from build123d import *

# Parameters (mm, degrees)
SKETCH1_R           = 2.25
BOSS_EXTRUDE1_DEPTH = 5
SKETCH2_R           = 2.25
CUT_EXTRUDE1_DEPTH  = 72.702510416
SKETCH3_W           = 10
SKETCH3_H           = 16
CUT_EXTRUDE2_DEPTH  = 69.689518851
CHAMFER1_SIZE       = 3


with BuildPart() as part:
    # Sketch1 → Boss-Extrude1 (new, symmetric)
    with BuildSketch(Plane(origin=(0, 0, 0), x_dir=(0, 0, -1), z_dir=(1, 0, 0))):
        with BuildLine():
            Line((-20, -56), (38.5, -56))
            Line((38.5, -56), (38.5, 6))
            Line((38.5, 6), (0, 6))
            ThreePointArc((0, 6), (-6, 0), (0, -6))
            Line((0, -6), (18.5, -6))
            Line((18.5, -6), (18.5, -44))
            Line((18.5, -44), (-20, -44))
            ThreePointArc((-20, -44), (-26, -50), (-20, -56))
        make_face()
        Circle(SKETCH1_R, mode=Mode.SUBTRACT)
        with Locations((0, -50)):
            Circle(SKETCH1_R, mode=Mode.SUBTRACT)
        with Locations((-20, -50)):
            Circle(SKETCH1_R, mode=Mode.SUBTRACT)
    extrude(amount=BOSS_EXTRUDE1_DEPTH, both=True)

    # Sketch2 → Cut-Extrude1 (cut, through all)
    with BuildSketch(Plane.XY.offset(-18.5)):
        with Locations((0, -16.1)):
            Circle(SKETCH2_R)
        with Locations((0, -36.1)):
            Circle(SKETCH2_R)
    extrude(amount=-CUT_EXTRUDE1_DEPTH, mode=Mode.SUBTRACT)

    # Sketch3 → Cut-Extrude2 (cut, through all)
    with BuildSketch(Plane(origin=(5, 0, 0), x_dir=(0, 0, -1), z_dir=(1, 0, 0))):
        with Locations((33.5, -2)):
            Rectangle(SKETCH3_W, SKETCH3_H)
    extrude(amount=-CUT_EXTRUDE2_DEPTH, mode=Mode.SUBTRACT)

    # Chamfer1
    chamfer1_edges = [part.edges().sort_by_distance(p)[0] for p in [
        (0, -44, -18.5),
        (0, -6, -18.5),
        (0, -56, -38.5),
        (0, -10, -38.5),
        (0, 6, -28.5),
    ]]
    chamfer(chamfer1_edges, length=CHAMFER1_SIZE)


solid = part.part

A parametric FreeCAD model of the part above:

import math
import FreeCAD as App
import Part
import Sketcher
from FreeCAD import Vector
Q = App.Units.Quantity


def edges_at(feature, points):
    """Names of the edges that pass closest to the given points."""
    edges = feature.Shape.Edges
    near = lambda p: min(range(len(edges)), key=lambda i: edges[i].distToShape(Part.Vertex(*p))[0])
    return sorted({f"Edge{near(p) + 1}" for p in points})


def add_polygon(sketch, points):
    """Adds a closed chain of lines whose ends are joined by coincident constraints."""
    first, n = sketch.GeometryCount, len(points)
    for a, b in zip(points, points[1:] + points[:1]):
        sketch.addGeometry(Part.LineSegment(App.Vector(*a, 0), App.Vector(*b, 0)), False)
    for i in range(n):
        sketch.addConstraint(Sketcher.Constraint("Coincident", first + i, 2, first + (i + 1) % n, 1))

doc = App.newDocument("Part")
body = doc.addObject("PartDesign::Body", "Body")

# Sketch on YZ plane
sketch1 = body.newObject("Sketcher::SketchObject", "Sketch")
sketch1.AttachmentSupport = (doc.getObject("YZ_Plane"), [""])
sketch1.MapMode = "FlatFace"
sketch1.addGeometry([
    Part.LineSegment(Vector(-56, 20, 0), Vector(-56, -38.5, 0)),  # 0
    Part.LineSegment(Vector(-56, -38.5, 0), Vector(6, -38.5, 0)),  # 1
    Part.LineSegment(Vector(6, -38.5, 0), Vector(6, 0, 0)),  # 2
    Part.ArcOfCircle(Part.Circle(Vector(0, 0, 0), Vector(0, 0, 1), 6), math.radians(0), math.radians(180)),  # 3
    Part.LineSegment(Vector(-6, 0, 0), Vector(-6, -18.5, 0)),  # 4
    Part.LineSegment(Vector(-6, -18.5, 0), Vector(-44, -18.5, 0)),  # 5
    Part.LineSegment(Vector(-44, -18.5, 0), Vector(-44, 20, 0)),  # 6
    Part.ArcOfCircle(Part.Circle(Vector(-50, 20, 0), Vector(0, 0, 1), 6), math.radians(0), math.radians(180)),  # 7
    Part.Circle(Vector(-50, 20, 0), Vector(0, 0, 1), 2.25),  # 8
    Part.Circle(Vector(-50, 0, 0), Vector(0, 0, 1), 2.25),  # 9
    Part.Circle(Vector(0, 0, 0), Vector(0, 0, 1), 2.25),  # 10
], False)
sketch1.addConstraint([
    Sketcher.Constraint("Coincident", 0, 2, 1, 1),
    Sketcher.Constraint("Coincident", 1, 2, 2, 1),
    Sketcher.Constraint("Tangent", 2, 2, 3, 1),
    Sketcher.Constraint("Tangent", 3, 2, 4, 1),
    Sketcher.Constraint("Coincident", 4, 2, 5, 1),
    Sketcher.Constraint("Coincident", 5, 2, 6, 1),
    Sketcher.Constraint("Tangent", 6, 2, 7, 1),
    Sketcher.Constraint("Tangent", 7, 2, 0, 1),
    Sketcher.Constraint("Vertical", 0),
    Sketcher.Constraint("Horizontal", 1),
    Sketcher.Constraint("Vertical", 2),
    Sketcher.Constraint("Vertical", 4),
    Sketcher.Constraint("Horizontal", 5),
    Sketcher.Constraint("Vertical", 6),
    Sketcher.Constraint("Coincident", 3, 3, -1, 1),
    Sketcher.Constraint("Coincident", 10, 3, -1, 1),
    Sketcher.Constraint("Coincident", 8, 3, 7, 3),
    Sketcher.Constraint("Equal", 3, 7),
    Sketcher.Constraint("Equal", 8, 9),
    Sketcher.Constraint("Equal", 9, 10),
    Sketcher.Constraint("PointOnObject", 9, 3, -1),
    Sketcher.Constraint("Vertical", 8, 3, 9, 3),
    Sketcher.Constraint("Equal", 2, 6),
    Sketcher.Constraint("Radius", 3, Q("6 mm")),
    Sketcher.Constraint("Diameter", 8, Q("4.5 mm")),
    Sketcher.Constraint("DistanceX", 1, 1, 1, 2, Q("62 mm")),
    Sketcher.Constraint("DistanceY", 0, 2, 0, 1, Q("58.5 mm")),
    Sketcher.Constraint("DistanceY", 2, 1, 2, 2, Q("38.5 mm")),
])
pad1 = body.newObject("PartDesign::Pad", "Pad")
pad1.Profile = sketch1
pad1.Length = 10
pad1.Midplane = True

# Sketch on XY plane
sketch2 = body.newObject("Sketcher::SketchObject", "Sketch001")
sketch2.AttachmentSupport = (doc.getObject("XY_Plane"), [""])
sketch2.MapMode = "FlatFace"
sketch2.AttachmentOffset = App.Placement(Vector(0, 0, -18.5), App.Rotation())
sketch2.addGeometry([
    Part.Circle(Vector(0, -16.1, 0), Vector(0, 0, 1), 2.25),
    Part.Circle(Vector(0, -36.1, 0), Vector(0, 0, 1), 2.25),
], False)
sketch2.addConstraint([
    Sketcher.Constraint("Equal", 0, 1),
    Sketcher.Constraint("PointOnObject", 0, 3, -2),
    Sketcher.Constraint("PointOnObject", 1, 3, -2),
    Sketcher.Constraint("Diameter", 0, Q("4.5 mm")),
    Sketcher.Constraint("DistanceY", 1, 3, 0, 3, Q("20 mm")),
    Sketcher.Constraint("DistanceY", 0, 3, -1, 1, Q("16.1 mm")),
])
pocket1 = body.newObject("PartDesign::Pocket", "Pocket")
pocket1.Profile = sketch2
pocket1.Type = "ThroughAll"

# Sketch on YZ plane
sketch3 = body.newObject("Sketcher::SketchObject", "Sketch002")
sketch3.AttachmentSupport = (doc.getObject("YZ_Plane"), [""])
sketch3.MapMode = "FlatFace"
sketch3.AttachmentOffset = App.Placement(Vector(0, 0, 5), App.Rotation())
add_polygon(sketch3, [(6, -28.5), (-10, -28.5), (-10, -38.5), (6, -38.5)])  # lines 0-3
sketch3.addConstraint([
    Sketcher.Constraint("Horizontal", 0),
    Sketcher.Constraint("Vertical", 1),
    Sketcher.Constraint("Horizontal", 2),
    Sketcher.Constraint("Vertical", 3),
    Sketcher.Constraint("DistanceX", 0, 2, 0, 1, Q("16 mm")),
    Sketcher.Constraint("DistanceY", 1, 2, 1, 1, Q("10 mm")),
    Sketcher.Constraint("DistanceX", 0, 2, -1, 1, Q("10 mm")),
    Sketcher.Constraint("DistanceY", 0, 2, -1, 1, Q("28.5 mm")),
])
pocket2 = body.newObject("PartDesign::Pocket", "Pocket001")
pocket2.Profile = sketch3
pocket2.Type = "ThroughAll"
doc.recompute()

chamfer = body.newObject("PartDesign::Chamfer", "Chamfer")
chamfer.Base = (pocket2, edges_at(pocket2, [
    (0, -44, -18.5),
    (0, -6, -18.5),
    (0, -56, -38.5),
    (0, -10, -38.5),
    (0, 6, -28.5),
]))
chamfer.Size = 3

doc.recompute()
